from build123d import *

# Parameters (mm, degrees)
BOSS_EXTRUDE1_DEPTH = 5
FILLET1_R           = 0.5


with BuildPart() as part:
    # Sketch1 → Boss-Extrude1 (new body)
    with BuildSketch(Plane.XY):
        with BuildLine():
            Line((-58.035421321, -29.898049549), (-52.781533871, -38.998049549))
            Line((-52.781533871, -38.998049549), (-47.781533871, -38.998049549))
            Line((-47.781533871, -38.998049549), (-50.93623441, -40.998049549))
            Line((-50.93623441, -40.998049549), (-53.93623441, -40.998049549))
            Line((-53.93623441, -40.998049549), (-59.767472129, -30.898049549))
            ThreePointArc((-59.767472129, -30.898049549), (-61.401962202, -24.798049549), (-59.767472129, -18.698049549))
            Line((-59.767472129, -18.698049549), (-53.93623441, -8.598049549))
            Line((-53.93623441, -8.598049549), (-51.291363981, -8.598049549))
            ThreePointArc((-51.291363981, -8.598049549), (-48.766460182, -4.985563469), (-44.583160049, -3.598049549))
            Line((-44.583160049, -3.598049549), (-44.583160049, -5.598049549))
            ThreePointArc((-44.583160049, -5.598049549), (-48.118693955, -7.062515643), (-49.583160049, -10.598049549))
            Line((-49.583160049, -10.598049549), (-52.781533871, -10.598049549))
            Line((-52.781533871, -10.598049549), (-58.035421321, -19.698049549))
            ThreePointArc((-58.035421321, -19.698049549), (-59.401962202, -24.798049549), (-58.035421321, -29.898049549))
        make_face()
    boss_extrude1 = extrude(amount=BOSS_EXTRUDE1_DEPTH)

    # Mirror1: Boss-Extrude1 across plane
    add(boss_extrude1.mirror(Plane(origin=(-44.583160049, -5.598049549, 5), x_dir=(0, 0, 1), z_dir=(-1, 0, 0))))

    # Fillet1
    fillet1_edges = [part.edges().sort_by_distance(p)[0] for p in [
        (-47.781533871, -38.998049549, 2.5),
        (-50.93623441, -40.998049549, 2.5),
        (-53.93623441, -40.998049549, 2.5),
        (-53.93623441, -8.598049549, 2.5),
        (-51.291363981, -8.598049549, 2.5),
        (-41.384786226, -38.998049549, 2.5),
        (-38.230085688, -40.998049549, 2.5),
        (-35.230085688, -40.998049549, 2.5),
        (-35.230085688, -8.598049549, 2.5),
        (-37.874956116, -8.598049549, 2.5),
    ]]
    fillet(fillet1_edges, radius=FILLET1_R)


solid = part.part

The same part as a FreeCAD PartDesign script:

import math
import FreeCAD as App
import Part
import Sketcher
Q = App.Units.Quantity


def edges_at(feature, points):
    """Names of the edges that pass closest to the given points."""
    edges = feature.Shape.Edges
    near = lambda p: min(range(len(edges)), key=lambda i: edges[i].distToShape(Part.Vertex(*p))[0])
    return sorted({f"Edge{near(p) + 1}" for p in points})

doc = App.newDocument("Part")
body = doc.addObject("PartDesign::Body", "Body")

# Sketch on XY plane
sketch1 = body.newObject("Sketcher::SketchObject", "Sketch")
sketch1.AttachmentSupport = (doc.getObject("XY_Plane"), [""])
sketch1.MapMode = "FlatFace"
sketch1.addGeometry([
    Part.LineSegment(App.Vector(-52.781534, -38.99805, 0), App.Vector(-58.035421, -29.89805, 0)),  # 0
    Part.ArcOfCircle(Part.Circle(App.Vector(-49.201962, -24.79805, 0), App.Vector(0, 0, 1), 10.2), math.radians(150), math.radians(210)),  # 1
    Part.LineSegment(App.Vector(-58.035421, -19.69805, 0), App.Vector(-52.781534, -10.59805, 0)),  # 2
    Part.LineSegment(App.Vector(-52.781534, -10.59805, 0), App.Vector(-49.58316, -10.59805, 0)),  # 3
    Part.ArcOfCircle(Part.Circle(App.Vector(-44.58316, -10.59805, 0), App.Vector(0, 0, 1), 5), math.radians(90), math.radians(180)),  # 4
    Part.LineSegment(App.Vector(-44.58316, -5.59805, 0), App.Vector(-44.58316, -3.59805, 0)),  # 5
    Part.ArcOfCircle(Part.Circle(App.Vector(-44.58316, -10.59805, 0), App.Vector(0, 0, 1), 7), math.radians(90), math.radians(163.39845)),  # 6
    Part.LineSegment(App.Vector(-51.291364, -8.59805, 0), App.Vector(-53.936234, -8.59805, 0)),  # 7
    Part.LineSegment(App.Vector(-53.936234, -8.59805, 0), App.Vector(-59.767472, -18.69805, 0)),  # 8
    Part.ArcOfCircle(Part.Circle(App.Vector(-49.201962, -24.79805, 0), App.Vector(0, 0, 1), 12.2), math.radians(150), math.radians(210)),  # 9
    Part.LineSegment(App.Vector(-59.767472, -30.89805, 0), App.Vector(-53.936234, -40.99805, 0)),  # 10
    Part.LineSegment(App.Vector(-53.936234, -40.99805, 0), App.Vector(-50.936234, -40.99805, 0)),  # 11
    Part.LineSegment(App.Vector(-50.936234, -40.99805, 0), App.Vector(-47.781534, -38.99805, 0)),  # 12
    Part.LineSegment(App.Vector(-47.781534, -38.99805, 0), App.Vector(-52.781534, -38.99805, 0)),  # 13
], False)
sketch1.addConstraint([
    Sketcher.Constraint("Tangent", 0, 2, 1, 2),
    Sketcher.Constraint("Tangent", 1, 1, 2, 1),
    Sketcher.Constraint("Coincident", 2, 2, 3, 1),
    Sketcher.Constraint("Coincident", 3, 2, 4, 2),
    Sketcher.Constraint("Coincident", 4, 1, 5, 1),
    Sketcher.Constraint("Coincident", 5, 2, 6, 1),
    Sketcher.Constraint("Coincident", 6, 2, 7, 1),
    Sketcher.Constraint("Coincident", 7, 2, 8, 1),
    Sketcher.Constraint("Tangent", 8, 2, 9, 1),
    Sketcher.Constraint("Tangent", 9, 2, 10, 1),
    Sketcher.Constraint("Coincident", 10, 2, 11, 1),
    Sketcher.Constraint("Coincident", 11, 2, 12, 1),
    Sketcher.Constraint("Coincident", 12, 2, 13, 1),
    Sketcher.Constraint("Coincident", 13, 2, 0, 1),
    Sketcher.Constraint("Horizontal", 3),
    Sketcher.Constraint("Vertical", 5),
    Sketcher.Constraint("Horizontal", 7),
    Sketcher.Constraint("Horizontal", 11),
    Sketcher.Constraint("Horizontal", 13),
    Sketcher.Constraint("Coincident", 6, 3, 4, 3),
    Sketcher.Constraint("Coincident", 9, 3, 1, 3),
    Sketcher.Constraint("Parallel", 2, 8),
    Sketcher.Constraint("Parallel", 0, 10),
    Sketcher.Constraint("Horizontal", 6, 3, 2, 2),
    Sketcher.Constraint("Vertical", 0, 2, 1, 1),
    Sketcher.Constraint("Vertical", 6, 3, 4, 1),
    Sketcher.Constraint("Vertical", 7, 2, 10, 2),
    Sketcher.Constraint("Vertical", 2, 2, 13, 2),
    Sketcher.Constraint("Radius", 4, Q("5 mm")),
    Sketcher.Constraint("Radius", 6, Q("7 mm")),
    Sketcher.Constraint("Radius", 1, Q("10.2 mm")),
    Sketcher.Constraint("Radius", 9, Q("12.2 mm")),
    Sketcher.Constraint("DistanceX", 11, 1, 11, 2, Q("3 mm")),
    Sketcher.Constraint("DistanceX", 13, 2, 13, 1, Q("5 mm")),
    Sketcher.Constraint("Angle", 0, Q("120 deg")),
    Sketcher.Constraint("DistanceY", 2, 2, 6, 2, Q("2 mm")),
    Sketcher.Constraint("DistanceY", 1, 3, 4, 3, Q("14.2 mm")),
    Sketcher.Constraint("DistanceX", 7, 2, 7, 1, Q("2.64487 mm")),
    Sketcher.Constraint("DistanceY", 1, 3, -1, 1, Q("24.79805 mm")),
    Sketcher.Constraint("DistanceX", 4, 3, -1, 1, Q("44.58316 mm")),
])
pad1 = body.newObject("PartDesign::Pad", "Pad")
pad1.Profile = sketch1
pad1.Length = 5
doc.recompute()

datumplane = body.newObject("PartDesign::Plane", "DatumPlane")
datumplane.AttachmentSupport = (doc.getObject("YZ_Plane"), [""])
datumplane.MapMode = "FlatFace"
datumplane.AttachmentOffset = App.Placement(App.Vector(0, 0, -44.58316), App.Rotation())
mirrored = body.newObject("PartDesign::Mirrored", "Mirrored")
mirrored.Originals = [pad1]
mirrored.MirrorPlane = (datumplane, [""])
body.Tip = mirrored
doc.recompute()

fillet = body.newObject("PartDesign::Fillet", "Fillet")
fillet.Base = (mirrored, edges_at(mirrored, [
    (-47.782, -38.998, 2.5),
    (-50.936, -40.998, 2.5),
    (-53.936, -40.998, 2.5),
    (-53.936, -8.598, 2.5),
    (-51.291, -8.598, 2.5),
    (-41.385, -38.998, 2.5),
    (-38.23, -40.998, 2.5),
    (-35.23, -40.998, 2.5),
    (-35.23, -8.598, 2.5),
    (-37.875, -8.598, 2.5),
]))
fillet.Radius = 0.5

doc.recompute()
